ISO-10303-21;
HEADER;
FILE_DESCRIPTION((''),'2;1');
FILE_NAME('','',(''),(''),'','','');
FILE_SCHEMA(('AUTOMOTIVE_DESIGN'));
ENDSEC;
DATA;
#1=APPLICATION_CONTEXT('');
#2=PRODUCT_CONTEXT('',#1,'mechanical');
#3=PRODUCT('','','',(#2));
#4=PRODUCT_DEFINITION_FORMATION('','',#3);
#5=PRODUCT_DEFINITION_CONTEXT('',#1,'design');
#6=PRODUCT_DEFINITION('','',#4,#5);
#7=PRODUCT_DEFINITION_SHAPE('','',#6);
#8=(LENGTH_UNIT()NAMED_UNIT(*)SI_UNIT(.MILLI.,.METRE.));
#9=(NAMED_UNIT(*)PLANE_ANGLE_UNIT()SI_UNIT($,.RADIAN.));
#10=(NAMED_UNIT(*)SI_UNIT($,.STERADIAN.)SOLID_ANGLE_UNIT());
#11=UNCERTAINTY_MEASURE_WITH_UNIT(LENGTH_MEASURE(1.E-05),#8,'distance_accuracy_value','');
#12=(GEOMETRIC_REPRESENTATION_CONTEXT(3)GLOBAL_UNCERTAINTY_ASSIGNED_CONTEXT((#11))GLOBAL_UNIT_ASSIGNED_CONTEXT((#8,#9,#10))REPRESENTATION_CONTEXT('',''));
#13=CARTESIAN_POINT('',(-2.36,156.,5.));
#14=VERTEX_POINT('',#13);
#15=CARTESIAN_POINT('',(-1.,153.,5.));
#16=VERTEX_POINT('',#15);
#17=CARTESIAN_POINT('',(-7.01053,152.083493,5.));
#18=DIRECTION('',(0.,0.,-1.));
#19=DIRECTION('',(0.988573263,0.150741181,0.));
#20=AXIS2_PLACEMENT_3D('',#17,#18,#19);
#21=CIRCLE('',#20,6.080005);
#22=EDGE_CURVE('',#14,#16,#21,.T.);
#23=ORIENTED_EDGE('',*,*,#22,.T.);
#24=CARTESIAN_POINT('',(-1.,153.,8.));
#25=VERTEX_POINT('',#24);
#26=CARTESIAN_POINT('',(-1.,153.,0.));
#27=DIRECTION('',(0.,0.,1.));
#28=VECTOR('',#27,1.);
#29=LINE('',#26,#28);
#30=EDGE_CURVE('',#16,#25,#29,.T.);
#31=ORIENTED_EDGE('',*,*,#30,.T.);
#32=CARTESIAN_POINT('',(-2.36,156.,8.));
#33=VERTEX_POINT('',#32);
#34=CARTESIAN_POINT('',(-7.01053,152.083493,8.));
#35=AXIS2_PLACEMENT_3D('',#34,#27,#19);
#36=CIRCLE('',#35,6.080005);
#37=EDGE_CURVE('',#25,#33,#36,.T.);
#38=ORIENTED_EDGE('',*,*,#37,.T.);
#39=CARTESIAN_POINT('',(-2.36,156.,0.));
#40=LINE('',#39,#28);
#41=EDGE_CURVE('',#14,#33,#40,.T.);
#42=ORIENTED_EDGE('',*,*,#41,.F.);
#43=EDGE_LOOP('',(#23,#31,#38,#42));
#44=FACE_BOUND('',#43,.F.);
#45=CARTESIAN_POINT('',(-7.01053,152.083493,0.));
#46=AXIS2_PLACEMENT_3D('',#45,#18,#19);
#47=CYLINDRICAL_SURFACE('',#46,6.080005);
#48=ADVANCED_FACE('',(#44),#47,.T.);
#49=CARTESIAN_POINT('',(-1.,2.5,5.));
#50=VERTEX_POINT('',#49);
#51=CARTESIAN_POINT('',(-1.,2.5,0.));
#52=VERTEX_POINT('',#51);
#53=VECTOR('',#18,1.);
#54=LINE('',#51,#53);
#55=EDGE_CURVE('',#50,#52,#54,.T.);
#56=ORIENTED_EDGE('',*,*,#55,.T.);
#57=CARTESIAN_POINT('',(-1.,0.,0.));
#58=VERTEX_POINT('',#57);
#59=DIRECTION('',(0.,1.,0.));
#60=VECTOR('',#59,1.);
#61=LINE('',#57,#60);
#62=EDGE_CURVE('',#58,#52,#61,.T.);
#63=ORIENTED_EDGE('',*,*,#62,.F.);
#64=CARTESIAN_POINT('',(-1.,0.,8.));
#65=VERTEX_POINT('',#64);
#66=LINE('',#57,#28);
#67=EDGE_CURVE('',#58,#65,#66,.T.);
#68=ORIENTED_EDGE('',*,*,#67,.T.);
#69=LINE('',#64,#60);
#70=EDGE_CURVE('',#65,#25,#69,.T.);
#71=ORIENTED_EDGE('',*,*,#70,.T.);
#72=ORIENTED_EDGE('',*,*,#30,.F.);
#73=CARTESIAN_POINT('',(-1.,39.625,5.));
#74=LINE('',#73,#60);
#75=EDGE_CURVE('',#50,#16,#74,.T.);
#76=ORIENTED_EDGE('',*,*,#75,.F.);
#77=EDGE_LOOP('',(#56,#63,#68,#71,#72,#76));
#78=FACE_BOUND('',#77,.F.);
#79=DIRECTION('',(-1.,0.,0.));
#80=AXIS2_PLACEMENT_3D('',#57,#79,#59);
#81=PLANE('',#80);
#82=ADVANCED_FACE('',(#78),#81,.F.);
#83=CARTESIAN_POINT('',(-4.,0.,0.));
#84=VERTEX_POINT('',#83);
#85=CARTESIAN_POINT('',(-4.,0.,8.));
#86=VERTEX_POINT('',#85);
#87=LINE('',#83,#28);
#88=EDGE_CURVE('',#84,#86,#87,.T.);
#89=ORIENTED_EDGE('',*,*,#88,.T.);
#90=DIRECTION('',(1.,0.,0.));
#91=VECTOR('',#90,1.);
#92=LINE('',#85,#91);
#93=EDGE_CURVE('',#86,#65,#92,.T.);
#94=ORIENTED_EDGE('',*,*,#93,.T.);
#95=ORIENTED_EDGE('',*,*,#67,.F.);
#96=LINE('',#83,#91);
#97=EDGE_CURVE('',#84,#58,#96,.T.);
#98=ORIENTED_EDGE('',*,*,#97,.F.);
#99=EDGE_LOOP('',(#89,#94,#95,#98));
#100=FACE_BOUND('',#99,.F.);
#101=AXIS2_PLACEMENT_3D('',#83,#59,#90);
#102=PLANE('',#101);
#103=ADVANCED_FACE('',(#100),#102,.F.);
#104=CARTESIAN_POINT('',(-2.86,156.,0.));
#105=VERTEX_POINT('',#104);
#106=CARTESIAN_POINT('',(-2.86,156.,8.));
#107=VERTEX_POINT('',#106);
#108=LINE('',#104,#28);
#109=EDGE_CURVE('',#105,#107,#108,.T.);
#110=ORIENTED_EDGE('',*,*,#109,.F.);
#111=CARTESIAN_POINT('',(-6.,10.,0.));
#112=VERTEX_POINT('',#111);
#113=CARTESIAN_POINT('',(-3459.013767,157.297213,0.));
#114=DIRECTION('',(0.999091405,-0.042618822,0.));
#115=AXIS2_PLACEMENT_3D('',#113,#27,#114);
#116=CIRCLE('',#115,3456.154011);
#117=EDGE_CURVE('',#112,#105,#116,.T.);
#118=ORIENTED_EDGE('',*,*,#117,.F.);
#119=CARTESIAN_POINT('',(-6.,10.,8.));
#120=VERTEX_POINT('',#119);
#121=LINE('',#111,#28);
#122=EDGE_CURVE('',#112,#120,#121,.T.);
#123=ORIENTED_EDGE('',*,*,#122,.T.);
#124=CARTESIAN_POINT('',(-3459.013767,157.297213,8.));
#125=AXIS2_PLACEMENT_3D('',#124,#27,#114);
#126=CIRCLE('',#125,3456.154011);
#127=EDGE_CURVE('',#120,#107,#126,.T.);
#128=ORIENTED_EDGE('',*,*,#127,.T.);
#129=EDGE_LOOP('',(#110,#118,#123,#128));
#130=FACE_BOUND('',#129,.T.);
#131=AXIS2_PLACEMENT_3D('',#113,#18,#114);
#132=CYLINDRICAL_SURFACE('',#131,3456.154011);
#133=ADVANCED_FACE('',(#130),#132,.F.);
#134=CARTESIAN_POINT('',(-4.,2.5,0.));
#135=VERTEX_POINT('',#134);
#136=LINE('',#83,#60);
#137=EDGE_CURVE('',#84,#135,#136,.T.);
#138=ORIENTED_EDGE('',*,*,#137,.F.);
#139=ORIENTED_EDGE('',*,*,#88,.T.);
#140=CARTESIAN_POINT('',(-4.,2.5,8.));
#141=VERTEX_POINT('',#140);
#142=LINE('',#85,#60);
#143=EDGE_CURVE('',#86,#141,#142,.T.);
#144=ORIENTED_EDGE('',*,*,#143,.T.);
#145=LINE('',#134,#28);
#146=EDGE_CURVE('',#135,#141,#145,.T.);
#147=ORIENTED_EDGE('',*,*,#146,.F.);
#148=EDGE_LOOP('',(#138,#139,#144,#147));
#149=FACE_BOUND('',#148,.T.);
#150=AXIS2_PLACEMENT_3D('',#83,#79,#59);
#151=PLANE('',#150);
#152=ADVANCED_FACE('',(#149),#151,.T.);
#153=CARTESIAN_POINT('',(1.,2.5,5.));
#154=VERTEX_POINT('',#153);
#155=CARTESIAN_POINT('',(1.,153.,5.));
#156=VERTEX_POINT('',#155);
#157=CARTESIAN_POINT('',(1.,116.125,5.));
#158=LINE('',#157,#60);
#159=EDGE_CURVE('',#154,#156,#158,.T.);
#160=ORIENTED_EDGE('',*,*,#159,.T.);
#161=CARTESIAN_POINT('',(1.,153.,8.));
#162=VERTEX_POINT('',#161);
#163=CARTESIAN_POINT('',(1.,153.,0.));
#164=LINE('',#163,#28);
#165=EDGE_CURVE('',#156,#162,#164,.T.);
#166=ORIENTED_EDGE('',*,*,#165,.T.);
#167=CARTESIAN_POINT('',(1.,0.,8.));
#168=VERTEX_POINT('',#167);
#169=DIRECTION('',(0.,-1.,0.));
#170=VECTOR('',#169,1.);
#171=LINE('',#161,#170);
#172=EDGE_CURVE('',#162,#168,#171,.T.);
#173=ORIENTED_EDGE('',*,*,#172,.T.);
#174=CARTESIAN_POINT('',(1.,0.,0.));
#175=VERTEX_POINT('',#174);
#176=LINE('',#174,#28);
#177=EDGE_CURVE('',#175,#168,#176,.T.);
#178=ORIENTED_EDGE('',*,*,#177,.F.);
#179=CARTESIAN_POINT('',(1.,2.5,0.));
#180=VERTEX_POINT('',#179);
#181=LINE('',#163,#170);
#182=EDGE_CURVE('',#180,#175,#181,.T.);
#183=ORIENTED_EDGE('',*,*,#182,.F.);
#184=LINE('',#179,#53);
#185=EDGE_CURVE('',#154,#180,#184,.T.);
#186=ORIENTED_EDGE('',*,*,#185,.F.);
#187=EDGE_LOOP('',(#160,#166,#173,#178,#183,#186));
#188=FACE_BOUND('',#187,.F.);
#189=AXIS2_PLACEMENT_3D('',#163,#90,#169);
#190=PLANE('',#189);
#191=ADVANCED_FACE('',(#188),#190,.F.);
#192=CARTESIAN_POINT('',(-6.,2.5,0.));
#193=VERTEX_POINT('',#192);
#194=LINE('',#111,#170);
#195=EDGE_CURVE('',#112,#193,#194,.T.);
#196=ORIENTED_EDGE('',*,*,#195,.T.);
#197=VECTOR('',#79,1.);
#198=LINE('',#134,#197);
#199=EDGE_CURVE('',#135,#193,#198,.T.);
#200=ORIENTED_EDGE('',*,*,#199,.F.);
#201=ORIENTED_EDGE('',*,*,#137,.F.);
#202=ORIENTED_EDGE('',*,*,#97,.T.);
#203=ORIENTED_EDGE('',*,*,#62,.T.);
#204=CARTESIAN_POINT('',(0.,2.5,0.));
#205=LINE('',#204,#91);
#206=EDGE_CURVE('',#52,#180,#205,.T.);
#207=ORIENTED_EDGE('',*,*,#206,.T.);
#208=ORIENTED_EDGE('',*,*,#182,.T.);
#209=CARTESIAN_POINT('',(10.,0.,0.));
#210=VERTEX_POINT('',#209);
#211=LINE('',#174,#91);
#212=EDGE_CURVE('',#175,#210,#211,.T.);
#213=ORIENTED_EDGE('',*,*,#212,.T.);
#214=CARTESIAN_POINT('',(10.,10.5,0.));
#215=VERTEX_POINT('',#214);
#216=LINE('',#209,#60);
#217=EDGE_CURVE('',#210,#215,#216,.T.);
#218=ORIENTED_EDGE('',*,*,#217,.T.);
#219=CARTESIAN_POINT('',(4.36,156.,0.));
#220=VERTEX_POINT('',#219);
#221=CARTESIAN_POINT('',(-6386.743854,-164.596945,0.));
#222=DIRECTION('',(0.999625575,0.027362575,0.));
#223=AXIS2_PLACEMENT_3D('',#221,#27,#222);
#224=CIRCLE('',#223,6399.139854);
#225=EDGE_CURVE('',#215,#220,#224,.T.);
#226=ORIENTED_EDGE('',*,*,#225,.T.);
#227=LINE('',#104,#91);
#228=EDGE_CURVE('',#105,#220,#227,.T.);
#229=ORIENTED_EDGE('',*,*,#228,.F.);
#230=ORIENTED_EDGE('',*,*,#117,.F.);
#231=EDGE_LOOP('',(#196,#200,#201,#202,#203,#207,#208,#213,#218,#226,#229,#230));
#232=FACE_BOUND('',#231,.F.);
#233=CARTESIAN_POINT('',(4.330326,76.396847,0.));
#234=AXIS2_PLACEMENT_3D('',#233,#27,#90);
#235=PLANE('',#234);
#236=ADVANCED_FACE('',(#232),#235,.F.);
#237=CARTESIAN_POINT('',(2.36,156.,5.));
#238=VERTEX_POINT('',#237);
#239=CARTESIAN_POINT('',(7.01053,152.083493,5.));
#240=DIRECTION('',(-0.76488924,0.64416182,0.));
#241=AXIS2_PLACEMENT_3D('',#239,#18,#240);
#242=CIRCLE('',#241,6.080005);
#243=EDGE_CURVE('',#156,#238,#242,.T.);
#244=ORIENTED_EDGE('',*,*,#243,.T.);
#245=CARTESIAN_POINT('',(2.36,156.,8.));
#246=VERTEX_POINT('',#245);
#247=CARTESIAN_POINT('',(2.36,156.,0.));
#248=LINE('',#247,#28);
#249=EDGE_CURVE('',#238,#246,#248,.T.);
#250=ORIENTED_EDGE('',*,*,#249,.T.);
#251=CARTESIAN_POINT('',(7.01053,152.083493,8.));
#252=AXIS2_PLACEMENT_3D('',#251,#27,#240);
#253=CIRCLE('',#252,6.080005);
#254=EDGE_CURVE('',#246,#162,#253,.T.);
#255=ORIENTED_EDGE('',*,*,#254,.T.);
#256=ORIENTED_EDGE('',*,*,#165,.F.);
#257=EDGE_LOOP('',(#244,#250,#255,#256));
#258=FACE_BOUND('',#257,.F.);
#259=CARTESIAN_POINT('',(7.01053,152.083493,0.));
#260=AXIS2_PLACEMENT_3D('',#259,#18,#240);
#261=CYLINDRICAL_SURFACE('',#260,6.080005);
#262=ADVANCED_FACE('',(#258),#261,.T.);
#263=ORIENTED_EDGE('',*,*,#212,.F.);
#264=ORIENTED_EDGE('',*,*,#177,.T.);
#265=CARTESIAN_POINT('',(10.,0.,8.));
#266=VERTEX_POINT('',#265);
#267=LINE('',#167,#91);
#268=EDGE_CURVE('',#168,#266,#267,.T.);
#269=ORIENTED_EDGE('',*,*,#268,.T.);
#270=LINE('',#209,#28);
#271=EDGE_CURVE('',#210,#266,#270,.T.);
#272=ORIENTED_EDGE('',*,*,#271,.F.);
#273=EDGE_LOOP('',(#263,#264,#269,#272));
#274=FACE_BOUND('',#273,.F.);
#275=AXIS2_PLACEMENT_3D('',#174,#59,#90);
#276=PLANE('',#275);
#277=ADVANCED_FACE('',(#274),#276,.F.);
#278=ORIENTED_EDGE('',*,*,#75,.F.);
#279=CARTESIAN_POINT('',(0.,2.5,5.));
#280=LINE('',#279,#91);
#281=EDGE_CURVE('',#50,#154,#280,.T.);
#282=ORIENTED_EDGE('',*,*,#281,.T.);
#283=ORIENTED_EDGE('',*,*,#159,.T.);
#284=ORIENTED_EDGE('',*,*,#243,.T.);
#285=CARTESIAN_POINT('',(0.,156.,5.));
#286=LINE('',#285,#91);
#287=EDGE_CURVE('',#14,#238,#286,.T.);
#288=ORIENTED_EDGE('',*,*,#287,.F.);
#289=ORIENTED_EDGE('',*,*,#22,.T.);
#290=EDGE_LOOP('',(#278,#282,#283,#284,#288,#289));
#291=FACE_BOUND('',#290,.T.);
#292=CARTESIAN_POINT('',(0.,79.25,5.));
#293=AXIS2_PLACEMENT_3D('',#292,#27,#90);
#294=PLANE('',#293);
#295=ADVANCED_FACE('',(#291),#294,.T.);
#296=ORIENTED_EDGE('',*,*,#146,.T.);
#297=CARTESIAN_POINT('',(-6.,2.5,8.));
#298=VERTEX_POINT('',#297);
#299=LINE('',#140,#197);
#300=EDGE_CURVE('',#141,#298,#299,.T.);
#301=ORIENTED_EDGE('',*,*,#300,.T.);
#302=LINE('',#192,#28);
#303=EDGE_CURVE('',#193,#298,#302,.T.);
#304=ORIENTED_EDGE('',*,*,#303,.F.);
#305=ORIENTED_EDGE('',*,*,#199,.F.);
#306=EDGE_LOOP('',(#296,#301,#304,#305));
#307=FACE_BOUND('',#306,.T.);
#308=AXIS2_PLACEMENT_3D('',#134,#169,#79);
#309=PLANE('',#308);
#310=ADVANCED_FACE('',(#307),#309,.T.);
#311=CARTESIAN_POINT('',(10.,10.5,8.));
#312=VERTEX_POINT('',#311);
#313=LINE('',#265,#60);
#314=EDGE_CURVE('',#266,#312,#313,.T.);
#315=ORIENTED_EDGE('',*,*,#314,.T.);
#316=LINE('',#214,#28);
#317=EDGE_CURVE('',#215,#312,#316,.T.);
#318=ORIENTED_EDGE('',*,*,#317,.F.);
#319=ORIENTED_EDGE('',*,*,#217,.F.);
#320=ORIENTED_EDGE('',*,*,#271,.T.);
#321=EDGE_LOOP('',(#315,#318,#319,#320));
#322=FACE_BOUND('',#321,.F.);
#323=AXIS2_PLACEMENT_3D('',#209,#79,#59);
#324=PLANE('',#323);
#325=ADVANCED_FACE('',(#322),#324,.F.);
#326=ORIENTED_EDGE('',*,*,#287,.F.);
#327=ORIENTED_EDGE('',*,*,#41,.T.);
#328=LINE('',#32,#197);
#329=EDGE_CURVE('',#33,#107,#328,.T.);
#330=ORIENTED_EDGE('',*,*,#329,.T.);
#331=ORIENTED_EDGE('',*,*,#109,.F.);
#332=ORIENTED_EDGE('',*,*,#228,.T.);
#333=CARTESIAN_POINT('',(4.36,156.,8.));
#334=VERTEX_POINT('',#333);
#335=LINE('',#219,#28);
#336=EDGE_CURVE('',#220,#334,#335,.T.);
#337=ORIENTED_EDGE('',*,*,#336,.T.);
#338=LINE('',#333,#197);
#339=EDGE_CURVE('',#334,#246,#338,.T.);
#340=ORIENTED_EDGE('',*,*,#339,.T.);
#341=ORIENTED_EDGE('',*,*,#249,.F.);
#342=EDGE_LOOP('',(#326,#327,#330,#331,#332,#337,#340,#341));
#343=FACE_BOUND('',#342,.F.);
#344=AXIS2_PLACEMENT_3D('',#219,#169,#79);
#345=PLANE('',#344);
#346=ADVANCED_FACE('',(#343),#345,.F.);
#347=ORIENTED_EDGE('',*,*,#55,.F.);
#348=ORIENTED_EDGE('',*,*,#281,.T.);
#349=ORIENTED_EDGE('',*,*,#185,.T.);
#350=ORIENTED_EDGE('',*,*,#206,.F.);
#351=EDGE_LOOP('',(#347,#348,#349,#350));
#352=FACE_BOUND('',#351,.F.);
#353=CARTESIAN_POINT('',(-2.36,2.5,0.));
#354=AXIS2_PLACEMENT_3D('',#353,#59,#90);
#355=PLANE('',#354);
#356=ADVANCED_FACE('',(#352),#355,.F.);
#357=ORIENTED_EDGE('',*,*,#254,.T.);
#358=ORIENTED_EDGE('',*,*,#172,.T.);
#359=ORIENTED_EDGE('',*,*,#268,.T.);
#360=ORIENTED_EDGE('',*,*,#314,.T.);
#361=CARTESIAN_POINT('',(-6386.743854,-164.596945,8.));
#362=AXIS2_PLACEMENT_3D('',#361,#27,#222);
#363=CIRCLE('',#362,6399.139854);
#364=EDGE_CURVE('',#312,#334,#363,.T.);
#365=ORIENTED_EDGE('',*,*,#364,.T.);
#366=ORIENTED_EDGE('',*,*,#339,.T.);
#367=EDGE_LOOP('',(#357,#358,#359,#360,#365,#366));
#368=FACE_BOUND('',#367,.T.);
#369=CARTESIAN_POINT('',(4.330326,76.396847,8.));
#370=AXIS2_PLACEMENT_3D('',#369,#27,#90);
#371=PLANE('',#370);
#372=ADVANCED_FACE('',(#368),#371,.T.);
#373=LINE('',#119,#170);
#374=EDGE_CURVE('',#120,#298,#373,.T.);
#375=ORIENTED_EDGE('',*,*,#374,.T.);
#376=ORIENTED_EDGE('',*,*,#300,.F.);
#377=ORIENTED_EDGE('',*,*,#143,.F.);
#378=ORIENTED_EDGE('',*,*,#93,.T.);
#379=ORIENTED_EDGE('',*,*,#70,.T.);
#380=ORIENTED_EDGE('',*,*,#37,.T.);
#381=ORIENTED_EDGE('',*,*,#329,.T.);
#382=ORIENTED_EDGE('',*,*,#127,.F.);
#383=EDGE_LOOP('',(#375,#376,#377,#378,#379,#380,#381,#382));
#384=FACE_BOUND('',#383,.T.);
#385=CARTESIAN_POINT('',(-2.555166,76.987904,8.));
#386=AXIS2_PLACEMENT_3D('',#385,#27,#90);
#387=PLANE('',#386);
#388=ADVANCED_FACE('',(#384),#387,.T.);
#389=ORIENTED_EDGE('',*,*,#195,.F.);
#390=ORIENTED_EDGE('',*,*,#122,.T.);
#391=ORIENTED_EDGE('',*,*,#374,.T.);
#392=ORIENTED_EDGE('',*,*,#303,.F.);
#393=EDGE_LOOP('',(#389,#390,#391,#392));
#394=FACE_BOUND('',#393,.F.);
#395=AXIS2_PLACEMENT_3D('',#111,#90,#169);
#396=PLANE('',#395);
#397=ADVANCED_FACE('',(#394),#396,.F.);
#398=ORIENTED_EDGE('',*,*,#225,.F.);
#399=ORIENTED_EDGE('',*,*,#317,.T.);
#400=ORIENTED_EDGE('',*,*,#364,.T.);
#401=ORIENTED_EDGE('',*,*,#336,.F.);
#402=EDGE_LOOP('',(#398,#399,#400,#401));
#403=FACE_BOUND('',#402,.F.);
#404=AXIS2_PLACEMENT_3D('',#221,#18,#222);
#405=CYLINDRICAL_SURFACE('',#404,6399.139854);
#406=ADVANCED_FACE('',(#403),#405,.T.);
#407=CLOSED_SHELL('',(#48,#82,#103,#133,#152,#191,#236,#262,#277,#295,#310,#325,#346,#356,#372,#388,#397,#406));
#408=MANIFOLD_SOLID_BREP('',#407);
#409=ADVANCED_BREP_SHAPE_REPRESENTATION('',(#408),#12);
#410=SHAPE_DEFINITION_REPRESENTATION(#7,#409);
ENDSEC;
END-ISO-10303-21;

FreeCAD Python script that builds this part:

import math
import FreeCAD as App
import Part
import Sketcher
from FreeCAD import Vector


def add_polygon(sketch, points):
    """Adds a closed chain of lines whose ends are joined by coincident constraints."""
    first, n = sketch.GeometryCount, len(points)
    for a, b in zip(points, points[1:] + points[:1]):
        sketch.addGeometry(Part.LineSegment(App.Vector(*a, 0), App.Vector(*b, 0)), False)
    for i in range(n):
        sketch.addConstraint(Sketcher.Constraint("Coincident", first + i, 2, first + (i + 1) % n, 1))

doc = App.newDocument("Part")
body = doc.addObject("PartDesign::Body", "Body")

# Sketch on XY plane
sketch1 = body.newObject("Sketcher::SketchObject", "Sketch")
sketch1.AttachmentSupport = (doc.getObject("XY_Plane"), [""])
sketch1.MapMode = "FlatFace"
sketch1.addGeometry([
    Part.LineSegment(Vector(-1, 0, 0), Vector(-1, 153, 0)),  # 0
    Part.ArcOfCircle(Part.Circle(Vector(-7, 152.1, 0), Vector(0, 0, 1), 6.1), math.radians(9), math.radians(40)),  # 1
    Part.LineSegment(Vector(-2.4, 156, 0), Vector(-2.9, 156, 0)),  # 2
    Part.ArcOfCircle(Part.Circle(Vector(-3459, 157.3, 0), Vector(0, 0, 1), 3456.2), math.radians(-2.44), math.radians(-0.02)),  # 3
    Part.LineSegment(Vector(-6, 10, 0), Vector(-6, 2.5, 0)),  # 4
    Part.LineSegment(Vector(-6, 2.5, 0), Vector(-4, 2.5, 0)),  # 5
    Part.LineSegment(Vector(-4, 2.5, 0), Vector(-4, 0, 0)),  # 6
    Part.LineSegment(Vector(-4, 0, 0), Vector(-1, 0, 0)),  # 7
], False)
sketch1.addConstraint([
    Sketcher.Constraint("Coincident", 0, 2, 1, 1),
    Sketcher.Constraint("Coincident", 1, 2, 2, 1),
    Sketcher.Constraint("Coincident", 2, 2, 3, 2),
    Sketcher.Constraint("Coincident", 3, 1, 4, 1),
    Sketcher.Constraint("Coincident", 4, 2, 5, 1),
    Sketcher.Constraint("Coincident", 5, 2, 6, 1),
    Sketcher.Constraint("Coincident", 6, 2, 7, 1),
    Sketcher.Constraint("Coincident", 7, 2, 0, 1),
    Sketcher.Constraint("Vertical", 0),
    Sketcher.Constraint("Horizontal", 2),
    Sketcher.Constraint("Vertical", 4),
    Sketcher.Constraint("Horizontal", 5),
    Sketcher.Constraint("Vertical", 6),
    Sketcher.Constraint("Horizontal", 7),
    Sketcher.Constraint("PointOnObject", 6, 2, -1),
    Sketcher.Constraint("DistanceX", 5, 1, 5, 2, 2.0),
    Sketcher.Constraint("DistanceX", 7, 1, 7, 2, 3.0),
    Sketcher.Constraint("DistanceY", 0, 1, 0, 2, 153.0),
    Sketcher.Constraint("DistanceX", 2, 2, 2, 1, 0.5),
    Sketcher.Constraint("DistanceY", 4, 2, 4, 1, 7.5),
    Sketcher.Constraint("DistanceY", 6, 2, 6, 1, 2.5),
    Sketcher.Constraint("DistanceX", 0, 2, -1, 1, 1.0),
    Sketcher.Constraint("DistanceY", -1, 1, 1, 2, 156.0),
    Sketcher.Constraint("DistanceX", 1, 2, -1, 1, 2.36),
    Sketcher.Constraint("Radius", 3, 3456.154011),
    Sketcher.Constraint("Radius", 1, 6.080005),
])
pad1 = body.newObject("PartDesign::Pad", "Pad")
pad1.Profile = sketch1
pad1.Length = 8

# Sketch on XY plane
sketch2 = body.newObject("Sketcher::SketchObject", "Sketch001")
sketch2.AttachmentSupport = (doc.getObject("XY_Plane"), [""])
sketch2.MapMode = "FlatFace"
add_polygon(sketch2, [(-2.4, 156), (-2.4, 2.5), (2.4, 2.5), (2.4, 156)])  # lines 0-3
sketch2.addConstraint([
    Sketcher.Constraint("Vertical", 0),
    Sketcher.Constraint("Horizontal", 1),
    Sketcher.Constraint("Vertical", 2),
    Sketcher.Constraint("Horizontal", 3),
    Sketcher.Constraint("DistanceY", 0, 2, 0, 1, 153.5),
    Sketcher.Constraint("DistanceY", -1, 1, 2, 2, 156.0),
    Sketcher.Constraint("DistanceX", 1, 1, 1, 2, 4.72),
    Sketcher.Constraint("DistanceX", 0, 2, -1, 1, 2.36),
])
pad2 = body.newObject("PartDesign::Pad", "Pad001")
pad2.Profile = sketch2
pad2.Length = 5

# Sketch on XY plane
sketch3 = body.newObject("Sketcher::SketchObject", "Sketch002")
sketch3.AttachmentSupport = (doc.getObject("XY_Plane"), [""])
sketch3.MapMode = "FlatFace"
sketch3.addGeometry([
    Part.LineSegment(Vector(1, 0, 0), Vector(10, 0, 0)),  # 0
    Part.LineSegment(Vector(10, 0, 0), Vector(10, 10.5, 0)),  # 1
    Part.ArcOfCircle(Part.Circle(Vector(-6386.7, -164.6, 0), Vector(0, 0, 1), 6399.1), math.radians(1.57), math.radians(2.87)),  # 2
    Part.LineSegment(Vector(4.4, 156, 0), Vector(2.4, 156, 0)),  # 3
    Part.ArcOfCircle(Part.Circle(Vector(7, 152.1, 0), Vector(0, 0, 1), 6.1), math.radians(140), math.radians(171)),  # 4
    Part.LineSegment(Vector(1, 153, 0), Vector(1, 0, 0)),  # 5
], False)
sketch3.addConstraint([
    Sketcher.Constraint("Coincident", 0, 2, 1, 1),
    Sketcher.Constraint("Coincident", 1, 2, 2, 1),
    Sketcher.Constraint("Coincident", 2, 2, 3, 1),
    Sketcher.Constraint("Coincident", 3, 2, 4, 1),
    Sketcher.Constraint("Coincident", 4, 2, 5, 1),
    Sketcher.Constraint("Coincident", 5, 2, 0, 1),
    Sketcher.Constraint("Horizontal", 0),
    Sketcher.Constraint("Vertical", 1),
    Sketcher.Constraint("Horizontal", 3),
    Sketcher.Constraint("Vertical", 5),
    Sketcher.Constraint("PointOnObject", 0, 2, -1),
    Sketcher.Constraint("DistanceX", 0, 1, 0, 2, 9.0),
    Sketcher.Constraint("DistanceX", 3, 2, 3, 1, 2.0),
    Sketcher.Constraint("DistanceY", 5, 2, 5, 1, 153.0),
    Sketcher.Constraint("DistanceY", 1, 1, 1, 2, 10.5),
    Sketcher.Constraint("DistanceX", -1, 1, 0, 2, 10.0),
    Sketcher.Constraint("DistanceY", -1, 1, 3, 2, 156.0),
    Sketcher.Constraint("DistanceX", -1, 1, 3, 2, 2.36),
    Sketcher.Constraint("Radius", 2, 6399.139854),
    Sketcher.Constraint("Radius", 4, 6.080005),
])
pad3 = body.newObject("PartDesign::Pad", "Pad002")
pad3.Profile = sketch3
pad3.Length = 8

doc.recompute()
